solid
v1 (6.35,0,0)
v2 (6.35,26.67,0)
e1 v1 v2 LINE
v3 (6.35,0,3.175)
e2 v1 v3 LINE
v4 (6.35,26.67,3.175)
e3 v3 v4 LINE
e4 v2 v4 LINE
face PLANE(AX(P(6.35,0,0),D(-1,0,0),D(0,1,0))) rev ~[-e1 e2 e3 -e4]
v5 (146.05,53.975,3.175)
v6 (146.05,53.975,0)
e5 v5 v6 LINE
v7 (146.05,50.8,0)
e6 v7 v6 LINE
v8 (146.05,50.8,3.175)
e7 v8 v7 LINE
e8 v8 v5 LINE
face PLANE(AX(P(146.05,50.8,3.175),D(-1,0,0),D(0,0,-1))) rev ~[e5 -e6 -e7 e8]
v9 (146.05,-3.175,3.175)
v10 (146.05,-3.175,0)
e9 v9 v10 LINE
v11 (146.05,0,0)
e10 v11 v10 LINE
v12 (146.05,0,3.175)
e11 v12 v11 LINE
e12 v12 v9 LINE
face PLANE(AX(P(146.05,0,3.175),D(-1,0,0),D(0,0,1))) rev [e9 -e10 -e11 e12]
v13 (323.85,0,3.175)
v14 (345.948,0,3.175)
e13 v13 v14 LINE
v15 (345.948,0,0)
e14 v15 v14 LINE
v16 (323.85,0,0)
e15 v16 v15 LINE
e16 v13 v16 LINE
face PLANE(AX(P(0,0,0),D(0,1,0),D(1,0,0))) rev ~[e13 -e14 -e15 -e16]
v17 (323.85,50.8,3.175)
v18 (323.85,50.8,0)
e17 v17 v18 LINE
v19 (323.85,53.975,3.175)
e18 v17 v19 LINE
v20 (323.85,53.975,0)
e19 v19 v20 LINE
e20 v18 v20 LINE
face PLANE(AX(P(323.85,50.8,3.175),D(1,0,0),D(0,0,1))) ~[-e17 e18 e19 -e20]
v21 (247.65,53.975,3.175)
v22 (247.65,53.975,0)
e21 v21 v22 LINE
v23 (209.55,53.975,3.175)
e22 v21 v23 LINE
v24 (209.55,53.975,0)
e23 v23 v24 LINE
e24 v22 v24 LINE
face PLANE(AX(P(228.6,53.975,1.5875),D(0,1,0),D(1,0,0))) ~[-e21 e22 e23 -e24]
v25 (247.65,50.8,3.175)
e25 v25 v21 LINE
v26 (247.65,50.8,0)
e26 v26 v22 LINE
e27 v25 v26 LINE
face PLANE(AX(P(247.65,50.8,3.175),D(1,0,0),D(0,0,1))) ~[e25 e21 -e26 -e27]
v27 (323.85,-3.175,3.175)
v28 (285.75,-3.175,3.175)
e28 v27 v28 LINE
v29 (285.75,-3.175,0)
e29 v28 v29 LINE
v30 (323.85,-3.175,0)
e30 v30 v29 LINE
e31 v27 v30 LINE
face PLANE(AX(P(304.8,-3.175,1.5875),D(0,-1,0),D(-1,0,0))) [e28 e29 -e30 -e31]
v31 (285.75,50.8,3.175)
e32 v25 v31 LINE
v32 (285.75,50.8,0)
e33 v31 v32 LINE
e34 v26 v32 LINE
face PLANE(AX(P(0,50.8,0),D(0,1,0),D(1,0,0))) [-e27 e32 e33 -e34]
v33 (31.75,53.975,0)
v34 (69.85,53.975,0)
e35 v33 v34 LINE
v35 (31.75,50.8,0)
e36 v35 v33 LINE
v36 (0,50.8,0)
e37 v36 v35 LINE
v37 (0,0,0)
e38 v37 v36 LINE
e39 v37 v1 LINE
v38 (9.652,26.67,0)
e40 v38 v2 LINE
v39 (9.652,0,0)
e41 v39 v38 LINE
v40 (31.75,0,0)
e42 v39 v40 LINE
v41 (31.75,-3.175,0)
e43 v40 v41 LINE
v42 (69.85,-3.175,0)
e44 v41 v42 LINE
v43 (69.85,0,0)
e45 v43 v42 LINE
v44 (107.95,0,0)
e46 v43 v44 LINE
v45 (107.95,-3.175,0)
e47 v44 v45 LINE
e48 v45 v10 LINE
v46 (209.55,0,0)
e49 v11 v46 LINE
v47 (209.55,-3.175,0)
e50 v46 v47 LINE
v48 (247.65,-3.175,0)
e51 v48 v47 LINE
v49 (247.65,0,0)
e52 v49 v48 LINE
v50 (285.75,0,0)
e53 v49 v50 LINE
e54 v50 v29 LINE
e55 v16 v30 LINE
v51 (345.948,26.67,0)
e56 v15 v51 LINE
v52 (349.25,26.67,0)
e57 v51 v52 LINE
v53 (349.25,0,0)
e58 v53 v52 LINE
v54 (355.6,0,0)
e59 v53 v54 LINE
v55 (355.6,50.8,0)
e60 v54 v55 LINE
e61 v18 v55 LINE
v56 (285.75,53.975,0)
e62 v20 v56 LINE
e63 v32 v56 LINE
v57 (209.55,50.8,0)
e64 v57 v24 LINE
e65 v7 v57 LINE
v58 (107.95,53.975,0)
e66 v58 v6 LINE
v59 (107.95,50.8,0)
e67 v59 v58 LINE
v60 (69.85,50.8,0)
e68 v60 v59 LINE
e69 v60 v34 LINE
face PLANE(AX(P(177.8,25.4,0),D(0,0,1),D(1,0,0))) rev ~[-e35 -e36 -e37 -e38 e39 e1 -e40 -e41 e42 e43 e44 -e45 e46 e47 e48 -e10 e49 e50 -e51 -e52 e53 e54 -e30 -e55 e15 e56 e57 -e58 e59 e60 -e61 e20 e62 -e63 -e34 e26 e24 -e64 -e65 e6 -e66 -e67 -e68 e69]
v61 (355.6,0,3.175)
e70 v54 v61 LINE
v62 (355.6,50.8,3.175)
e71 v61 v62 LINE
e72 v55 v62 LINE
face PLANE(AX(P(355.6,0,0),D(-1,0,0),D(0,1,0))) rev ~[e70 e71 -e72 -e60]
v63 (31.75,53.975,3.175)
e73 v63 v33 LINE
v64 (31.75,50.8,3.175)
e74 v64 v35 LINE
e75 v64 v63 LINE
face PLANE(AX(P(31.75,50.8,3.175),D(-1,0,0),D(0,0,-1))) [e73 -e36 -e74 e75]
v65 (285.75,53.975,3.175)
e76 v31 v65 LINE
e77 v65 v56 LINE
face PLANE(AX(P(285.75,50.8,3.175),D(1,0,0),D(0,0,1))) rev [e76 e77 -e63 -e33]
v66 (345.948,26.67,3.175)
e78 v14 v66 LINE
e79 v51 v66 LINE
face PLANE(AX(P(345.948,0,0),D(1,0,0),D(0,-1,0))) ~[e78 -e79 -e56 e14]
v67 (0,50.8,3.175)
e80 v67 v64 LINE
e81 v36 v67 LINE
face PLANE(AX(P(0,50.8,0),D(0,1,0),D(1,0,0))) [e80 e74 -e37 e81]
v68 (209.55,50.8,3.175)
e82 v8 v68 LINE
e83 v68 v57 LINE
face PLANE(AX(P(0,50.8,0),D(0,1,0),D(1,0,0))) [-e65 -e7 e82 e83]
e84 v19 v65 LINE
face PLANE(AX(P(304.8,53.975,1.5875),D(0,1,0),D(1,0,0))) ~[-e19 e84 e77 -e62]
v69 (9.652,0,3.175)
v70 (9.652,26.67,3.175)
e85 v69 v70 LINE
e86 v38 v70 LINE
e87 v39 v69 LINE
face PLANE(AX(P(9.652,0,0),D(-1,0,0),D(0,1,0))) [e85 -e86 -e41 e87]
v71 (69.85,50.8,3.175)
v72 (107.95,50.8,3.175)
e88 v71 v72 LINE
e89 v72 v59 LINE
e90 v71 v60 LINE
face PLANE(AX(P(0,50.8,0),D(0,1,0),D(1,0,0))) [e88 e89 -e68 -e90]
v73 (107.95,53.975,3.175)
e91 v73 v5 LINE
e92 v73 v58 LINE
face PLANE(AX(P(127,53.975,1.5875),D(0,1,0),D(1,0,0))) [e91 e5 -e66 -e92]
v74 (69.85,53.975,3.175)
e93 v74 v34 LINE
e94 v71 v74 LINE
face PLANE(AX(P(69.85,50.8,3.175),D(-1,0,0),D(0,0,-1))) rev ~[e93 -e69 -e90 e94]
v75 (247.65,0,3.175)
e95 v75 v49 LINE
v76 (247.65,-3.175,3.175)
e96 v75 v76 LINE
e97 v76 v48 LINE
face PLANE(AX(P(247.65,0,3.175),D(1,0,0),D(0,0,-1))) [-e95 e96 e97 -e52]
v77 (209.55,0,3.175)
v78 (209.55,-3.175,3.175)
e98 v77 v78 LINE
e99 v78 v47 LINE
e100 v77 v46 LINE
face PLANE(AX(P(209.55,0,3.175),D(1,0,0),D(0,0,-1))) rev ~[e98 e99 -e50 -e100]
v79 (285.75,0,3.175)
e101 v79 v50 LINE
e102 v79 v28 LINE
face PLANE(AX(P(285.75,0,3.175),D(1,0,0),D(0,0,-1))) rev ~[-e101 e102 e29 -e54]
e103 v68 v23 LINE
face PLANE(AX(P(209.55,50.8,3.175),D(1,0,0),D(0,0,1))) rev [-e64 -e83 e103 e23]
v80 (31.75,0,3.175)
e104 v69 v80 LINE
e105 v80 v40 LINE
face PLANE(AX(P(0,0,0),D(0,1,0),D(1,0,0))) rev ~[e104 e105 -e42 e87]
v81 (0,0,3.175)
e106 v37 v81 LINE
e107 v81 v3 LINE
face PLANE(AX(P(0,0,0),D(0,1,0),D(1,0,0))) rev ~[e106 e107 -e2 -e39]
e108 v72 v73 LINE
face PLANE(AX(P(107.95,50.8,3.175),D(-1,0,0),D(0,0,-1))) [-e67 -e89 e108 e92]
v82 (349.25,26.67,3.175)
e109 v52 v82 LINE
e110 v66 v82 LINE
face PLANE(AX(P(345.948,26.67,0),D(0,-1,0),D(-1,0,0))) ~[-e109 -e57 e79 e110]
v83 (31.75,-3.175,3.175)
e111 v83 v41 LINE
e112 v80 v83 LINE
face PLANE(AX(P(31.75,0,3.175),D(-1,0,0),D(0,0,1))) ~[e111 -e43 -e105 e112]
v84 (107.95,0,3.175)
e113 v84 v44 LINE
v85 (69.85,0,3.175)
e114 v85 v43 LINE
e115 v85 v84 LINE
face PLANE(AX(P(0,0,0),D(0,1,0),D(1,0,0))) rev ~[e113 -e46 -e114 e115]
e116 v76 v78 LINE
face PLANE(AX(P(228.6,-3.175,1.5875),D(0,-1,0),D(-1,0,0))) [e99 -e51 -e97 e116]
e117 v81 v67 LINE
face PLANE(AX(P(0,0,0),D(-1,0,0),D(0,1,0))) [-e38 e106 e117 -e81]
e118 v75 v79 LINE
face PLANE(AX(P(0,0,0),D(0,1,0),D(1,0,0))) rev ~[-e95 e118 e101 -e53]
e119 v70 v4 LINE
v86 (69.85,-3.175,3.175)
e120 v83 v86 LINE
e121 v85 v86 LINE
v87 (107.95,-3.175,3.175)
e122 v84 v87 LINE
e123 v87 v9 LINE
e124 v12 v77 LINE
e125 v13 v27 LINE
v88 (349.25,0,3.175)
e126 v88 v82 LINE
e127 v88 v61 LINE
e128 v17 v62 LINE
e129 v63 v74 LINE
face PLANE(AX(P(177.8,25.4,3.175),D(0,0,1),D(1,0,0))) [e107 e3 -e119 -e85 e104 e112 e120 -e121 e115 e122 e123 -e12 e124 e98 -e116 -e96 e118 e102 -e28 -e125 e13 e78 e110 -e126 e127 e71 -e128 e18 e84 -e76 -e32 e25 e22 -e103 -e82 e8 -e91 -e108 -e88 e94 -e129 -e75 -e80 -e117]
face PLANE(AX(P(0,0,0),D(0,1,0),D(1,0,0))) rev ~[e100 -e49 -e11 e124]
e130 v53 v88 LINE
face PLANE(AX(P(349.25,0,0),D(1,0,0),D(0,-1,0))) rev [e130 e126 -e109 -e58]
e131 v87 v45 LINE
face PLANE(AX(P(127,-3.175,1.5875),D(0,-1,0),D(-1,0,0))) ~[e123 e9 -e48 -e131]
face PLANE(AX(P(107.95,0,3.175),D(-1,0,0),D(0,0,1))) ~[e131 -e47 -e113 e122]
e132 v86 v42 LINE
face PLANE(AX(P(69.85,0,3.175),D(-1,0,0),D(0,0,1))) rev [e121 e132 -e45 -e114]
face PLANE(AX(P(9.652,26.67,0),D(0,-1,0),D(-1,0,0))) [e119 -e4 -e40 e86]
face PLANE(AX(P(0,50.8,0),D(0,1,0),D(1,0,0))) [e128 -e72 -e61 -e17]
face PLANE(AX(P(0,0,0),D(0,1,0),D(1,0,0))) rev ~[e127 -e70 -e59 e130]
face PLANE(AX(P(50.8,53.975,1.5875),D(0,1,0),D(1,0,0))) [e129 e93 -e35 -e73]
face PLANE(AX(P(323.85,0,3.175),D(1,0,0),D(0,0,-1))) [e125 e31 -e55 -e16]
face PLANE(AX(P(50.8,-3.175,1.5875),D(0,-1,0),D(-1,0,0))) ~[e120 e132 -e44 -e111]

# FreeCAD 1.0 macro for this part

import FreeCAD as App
import Part
import Sketcher
from FreeCAD import Vector
Q = App.Units.Quantity


def add_polygon(sketch, points):
    """Adds a closed chain of lines whose ends are joined by coincident constraints."""
    first, n = sketch.GeometryCount, len(points)
    for a, b in zip(points, points[1:] + points[:1]):
        sketch.addGeometry(Part.LineSegment(App.Vector(*a, 0), App.Vector(*b, 0)), False)
    for i in range(n):
        sketch.addConstraint(Sketcher.Constraint("Coincident", first + i, 2, first + (i + 1) % n, 1))

doc = App.newDocument("Part")
body = doc.addObject("PartDesign::Body", "Body")

# Sketch on XY plane
sketch1 = doc.addObject("Sketcher::SketchObject", "Sketch")
body.addObject(sketch1)
sketch1.AttachmentSupport = (doc.XY_Plane, [""])
sketch1.MapMode = "FlatFace"
add_polygon(sketch1, [(0, 51), (0, 0), (356, 0), (356, 51)])  # lines 0-3
sketch1.addConstraint(Sketcher.Constraint("Vertical", 0))
sketch1.addConstraint(Sketcher.Constraint("Horizontal", 1))
sketch1.addConstraint(Sketcher.Constraint("Vertical", 2))
sketch1.addConstraint(Sketcher.Constraint("Horizontal", 3))
sketch1.addConstraint(Sketcher.Constraint("Coincident", 0, 2, -1, 1))
sketch1.addConstraint(Sketcher.Constraint("DistanceX", 1, 1, 1, 2, Q("14 in")))
sketch1.addConstraint(Sketcher.Constraint("DistanceY", 0, 2, 0, 1, Q("2 in")))
pad1 = doc.addObject("PartDesign::Pad", "Pad")
body.addObject(pad1)
pad1.Profile = sketch1
pad1.Length = Q("0.125 in")

# Sketch on XZ plane
sketch2 = doc.addObject("Sketcher::SketchObject", "Sketch001")
body.addObject(sketch2)
sketch2.AttachmentSupport = (doc.XZ_Plane, [""])
sketch2.MapMode = "FlatFace"
sketch2.AttachmentOffset = App.Placement(Vector(0, 0, -2 * 25.4), App.Rotation())
add_polygon(sketch2, [(31.8, 0), (31.8, 3.2), (69.8, 3.2), (69.8, 0)])  # lines 0-3
add_polygon(sketch2, [(108, 0), (108, 3.2), (146.1, 3.2), (146.1, 0)])  # lines 4-7
sketch2.addConstraint(Sketcher.Constraint("Vertical", 0))
sketch2.addConstraint(Sketcher.Constraint("Horizontal", 1))
sketch2.addConstraint(Sketcher.Constraint("Vertical", 2))
sketch2.addConstraint(Sketcher.Constraint("Horizontal", 3))
sketch2.addConstraint(Sketcher.Constraint("Vertical", 4))
sketch2.addConstraint(Sketcher.Constraint("Horizontal", 5))
sketch2.addConstraint(Sketcher.Constraint("Vertical", 6))
sketch2.addConstraint(Sketcher.Constraint("Horizontal", 7))
sketch2.addConstraint(Sketcher.Constraint("PointOnObject", 2, 2, -1))
sketch2.addConstraint(Sketcher.Constraint("PointOnObject", 6, 2, -1))
sketch2.addConstraint(Sketcher.Constraint("Horizontal", 1, 2, 4, 2))
sketch2.addConstraint(Sketcher.Constraint("Equal", 3, 5))
sketch2.addConstraint(Sketcher.Constraint("DistanceX", 1, 1, 1, 2, Q("1.5 in")))
sketch2.addConstraint(Sketcher.Constraint("DistanceX", 0, 2, 4, 2, Q("3 in")))
sketch2.addConstraint(Sketcher.Constraint("DistanceY", 0, 1, 0, 2, Q("0.125 in")))
sketch2.addConstraint(Sketcher.Constraint("DistanceX", -1, 1, 0, 2, Q("1.25 in")))
pad2 = doc.addObject("PartDesign::Pad", "Pad001")
body.addObject(pad2)
pad2.Profile = sketch2
pad2.Length = Q("0.125 in")
pad2.Reversed = True
doc.recompute()

datumplane = doc.addObject("PartDesign::Plane", "DatumPlane")
body.addObject(datumplane)
datumplane.AttachmentSupport = (doc.YZ_Plane, [""])
datumplane.MapMode = "FlatFace"
datumplane.AttachmentOffset = App.Placement(Vector(0, 0, 7 * 25.4), App.Rotation())
mirrored = doc.addObject("PartDesign::Mirrored", "Mirrored")
body.addObject(mirrored)
mirrored.Originals = [pad2]
mirrored.MirrorPlane = (datumplane, [""])
body.Tip = mirrored
doc.recompute()

datumplane2 = doc.addObject("PartDesign::Plane", "DatumPlane001")
body.addObject(datumplane2)
datumplane2.AttachmentSupport = (doc.XZ_Plane, [""])
datumplane2.MapMode = "FlatFace"
datumplane2.AttachmentOffset = App.Placement(Vector(0, 0, -1 * 25.4), App.Rotation())
mirrored2 = doc.addObject("PartDesign::Mirrored", "Mirrored001")
body.addObject(mirrored2)
mirrored2.Originals = [pad2]
mirrored2.MirrorPlane = (datumplane2, [""])
body.Tip = mirrored2

# Sketch on XZ plane
sketch3 = doc.addObject("Sketcher::SketchObject", "Sketch002")
body.addObject(sketch3)
sketch3.AttachmentSupport = (doc.XZ_Plane, [""])
sketch3.MapMode = "FlatFace"
add_polygon(sketch3, [(323.9, 0), (323.9, 3.2), (285.8, 3.2), (285.8, 0)])  # lines 0-3
add_polygon(sketch3, [(247.7, 0), (247.7, 3.2), (209.6, 3.2), (209.6, 0)])  # lines 4-7
sketch3.addConstraint(Sketcher.Constraint("Vertical", 0))
sketch3.addConstraint(Sketcher.Constraint("Horizontal", 1))
sketch3.addConstraint(Sketcher.Constraint("Vertical", 2))
sketch3.addConstraint(Sketcher.Constraint("Horizontal", 3))
sketch3.addConstraint(Sketcher.Constraint("Vertical", 4))
sketch3.addConstraint(Sketcher.Constraint("Horizontal", 5))
sketch3.addConstraint(Sketcher.Constraint("Vertical", 6))
sketch3.addConstraint(Sketcher.Constraint("Horizontal", 7))
sketch3.addConstraint(Sketcher.Constraint("PointOnObject", 2, 2, -1))
sketch3.addConstraint(Sketcher.Constraint("PointOnObject", 6, 2, -1))
sketch3.addConstraint(Sketcher.Constraint("Horizontal", 1, 2, 4, 2))
sketch3.addConstraint(Sketcher.Constraint("Equal", 3, 5))
sketch3.addConstraint(Sketcher.Constraint("DistanceX", 1, 2, 1, 1, Q("1.5 in")))
sketch3.addConstraint(Sketcher.Constraint("DistanceX", 4, 2, 0, 2, Q("3 in")))
sketch3.addConstraint(Sketcher.Constraint("DistanceY", 0, 1, 0, 2, Q("0.125 in")))
sketch3.addConstraint(Sketcher.Constraint("DistanceX", -1, 1, 0, 2, Q("12.75 in")))
pad3 = doc.addObject("PartDesign::Pad", "Pad002")
body.addObject(pad3)
pad3.Profile = sketch3
pad3.Length = Q("0.125 in")

# Sketch on XY plane
sketch4 = doc.addObject("Sketcher::SketchObject", "Sketch003")
body.addObject(sketch4)
sketch4.AttachmentSupport = (doc.XY_Plane, [""])
sketch4.MapMode = "FlatFace"
add_polygon(sketch4, [(9.7, 26.7), (9.7, 0), (6.3, 0), (6.3, 26.7)])  # lines 0-3
sketch4.addConstraint(Sketcher.Constraint("Vertical", 0))
sketch4.addConstraint(Sketcher.Constraint("Horizontal", 1))
sketch4.addConstraint(Sketcher.Constraint("Vertical", 2))
sketch4.addConstraint(Sketcher.Constraint("Horizontal", 3))
sketch4.addConstraint(Sketcher.Constraint("PointOnObject", 0, 2, -1))
sketch4.addConstraint(Sketcher.Constraint("DistanceX", 1, 2, 1, 1, Q("0.13 in")))
sketch4.addConstraint(Sketcher.Constraint("DistanceY", 0, 2, 0, 1, Q("1.05 in")))
sketch4.addConstraint(Sketcher.Constraint("DistanceX", -1, 1, 0, 2, Q("0.38 in")))
pocket1 = doc.addObject("PartDesign::Pocket", "Pocket")
body.addObject(pocket1)
pocket1.Profile = sketch4
pocket1.Length = Q("0.125 in")
pocket1.Reversed = True
doc.recompute()

datumplane3 = doc.addObject("PartDesign::Plane", "DatumPlane002")
body.addObject(datumplane3)
datumplane3.AttachmentSupport = (doc.YZ_Plane, [""])
datumplane3.MapMode = "FlatFace"
datumplane3.AttachmentOffset = App.Placement(Vector(0, 0, 7 * 25.4), App.Rotation())
mirrored3 = doc.addObject("PartDesign::Mirrored", "Mirrored002")
body.addObject(mirrored3)
mirrored3.Originals = [pocket1]
mirrored3.MirrorPlane = (datumplane3, [""])
body.Tip = mirrored3

doc.recompute()
